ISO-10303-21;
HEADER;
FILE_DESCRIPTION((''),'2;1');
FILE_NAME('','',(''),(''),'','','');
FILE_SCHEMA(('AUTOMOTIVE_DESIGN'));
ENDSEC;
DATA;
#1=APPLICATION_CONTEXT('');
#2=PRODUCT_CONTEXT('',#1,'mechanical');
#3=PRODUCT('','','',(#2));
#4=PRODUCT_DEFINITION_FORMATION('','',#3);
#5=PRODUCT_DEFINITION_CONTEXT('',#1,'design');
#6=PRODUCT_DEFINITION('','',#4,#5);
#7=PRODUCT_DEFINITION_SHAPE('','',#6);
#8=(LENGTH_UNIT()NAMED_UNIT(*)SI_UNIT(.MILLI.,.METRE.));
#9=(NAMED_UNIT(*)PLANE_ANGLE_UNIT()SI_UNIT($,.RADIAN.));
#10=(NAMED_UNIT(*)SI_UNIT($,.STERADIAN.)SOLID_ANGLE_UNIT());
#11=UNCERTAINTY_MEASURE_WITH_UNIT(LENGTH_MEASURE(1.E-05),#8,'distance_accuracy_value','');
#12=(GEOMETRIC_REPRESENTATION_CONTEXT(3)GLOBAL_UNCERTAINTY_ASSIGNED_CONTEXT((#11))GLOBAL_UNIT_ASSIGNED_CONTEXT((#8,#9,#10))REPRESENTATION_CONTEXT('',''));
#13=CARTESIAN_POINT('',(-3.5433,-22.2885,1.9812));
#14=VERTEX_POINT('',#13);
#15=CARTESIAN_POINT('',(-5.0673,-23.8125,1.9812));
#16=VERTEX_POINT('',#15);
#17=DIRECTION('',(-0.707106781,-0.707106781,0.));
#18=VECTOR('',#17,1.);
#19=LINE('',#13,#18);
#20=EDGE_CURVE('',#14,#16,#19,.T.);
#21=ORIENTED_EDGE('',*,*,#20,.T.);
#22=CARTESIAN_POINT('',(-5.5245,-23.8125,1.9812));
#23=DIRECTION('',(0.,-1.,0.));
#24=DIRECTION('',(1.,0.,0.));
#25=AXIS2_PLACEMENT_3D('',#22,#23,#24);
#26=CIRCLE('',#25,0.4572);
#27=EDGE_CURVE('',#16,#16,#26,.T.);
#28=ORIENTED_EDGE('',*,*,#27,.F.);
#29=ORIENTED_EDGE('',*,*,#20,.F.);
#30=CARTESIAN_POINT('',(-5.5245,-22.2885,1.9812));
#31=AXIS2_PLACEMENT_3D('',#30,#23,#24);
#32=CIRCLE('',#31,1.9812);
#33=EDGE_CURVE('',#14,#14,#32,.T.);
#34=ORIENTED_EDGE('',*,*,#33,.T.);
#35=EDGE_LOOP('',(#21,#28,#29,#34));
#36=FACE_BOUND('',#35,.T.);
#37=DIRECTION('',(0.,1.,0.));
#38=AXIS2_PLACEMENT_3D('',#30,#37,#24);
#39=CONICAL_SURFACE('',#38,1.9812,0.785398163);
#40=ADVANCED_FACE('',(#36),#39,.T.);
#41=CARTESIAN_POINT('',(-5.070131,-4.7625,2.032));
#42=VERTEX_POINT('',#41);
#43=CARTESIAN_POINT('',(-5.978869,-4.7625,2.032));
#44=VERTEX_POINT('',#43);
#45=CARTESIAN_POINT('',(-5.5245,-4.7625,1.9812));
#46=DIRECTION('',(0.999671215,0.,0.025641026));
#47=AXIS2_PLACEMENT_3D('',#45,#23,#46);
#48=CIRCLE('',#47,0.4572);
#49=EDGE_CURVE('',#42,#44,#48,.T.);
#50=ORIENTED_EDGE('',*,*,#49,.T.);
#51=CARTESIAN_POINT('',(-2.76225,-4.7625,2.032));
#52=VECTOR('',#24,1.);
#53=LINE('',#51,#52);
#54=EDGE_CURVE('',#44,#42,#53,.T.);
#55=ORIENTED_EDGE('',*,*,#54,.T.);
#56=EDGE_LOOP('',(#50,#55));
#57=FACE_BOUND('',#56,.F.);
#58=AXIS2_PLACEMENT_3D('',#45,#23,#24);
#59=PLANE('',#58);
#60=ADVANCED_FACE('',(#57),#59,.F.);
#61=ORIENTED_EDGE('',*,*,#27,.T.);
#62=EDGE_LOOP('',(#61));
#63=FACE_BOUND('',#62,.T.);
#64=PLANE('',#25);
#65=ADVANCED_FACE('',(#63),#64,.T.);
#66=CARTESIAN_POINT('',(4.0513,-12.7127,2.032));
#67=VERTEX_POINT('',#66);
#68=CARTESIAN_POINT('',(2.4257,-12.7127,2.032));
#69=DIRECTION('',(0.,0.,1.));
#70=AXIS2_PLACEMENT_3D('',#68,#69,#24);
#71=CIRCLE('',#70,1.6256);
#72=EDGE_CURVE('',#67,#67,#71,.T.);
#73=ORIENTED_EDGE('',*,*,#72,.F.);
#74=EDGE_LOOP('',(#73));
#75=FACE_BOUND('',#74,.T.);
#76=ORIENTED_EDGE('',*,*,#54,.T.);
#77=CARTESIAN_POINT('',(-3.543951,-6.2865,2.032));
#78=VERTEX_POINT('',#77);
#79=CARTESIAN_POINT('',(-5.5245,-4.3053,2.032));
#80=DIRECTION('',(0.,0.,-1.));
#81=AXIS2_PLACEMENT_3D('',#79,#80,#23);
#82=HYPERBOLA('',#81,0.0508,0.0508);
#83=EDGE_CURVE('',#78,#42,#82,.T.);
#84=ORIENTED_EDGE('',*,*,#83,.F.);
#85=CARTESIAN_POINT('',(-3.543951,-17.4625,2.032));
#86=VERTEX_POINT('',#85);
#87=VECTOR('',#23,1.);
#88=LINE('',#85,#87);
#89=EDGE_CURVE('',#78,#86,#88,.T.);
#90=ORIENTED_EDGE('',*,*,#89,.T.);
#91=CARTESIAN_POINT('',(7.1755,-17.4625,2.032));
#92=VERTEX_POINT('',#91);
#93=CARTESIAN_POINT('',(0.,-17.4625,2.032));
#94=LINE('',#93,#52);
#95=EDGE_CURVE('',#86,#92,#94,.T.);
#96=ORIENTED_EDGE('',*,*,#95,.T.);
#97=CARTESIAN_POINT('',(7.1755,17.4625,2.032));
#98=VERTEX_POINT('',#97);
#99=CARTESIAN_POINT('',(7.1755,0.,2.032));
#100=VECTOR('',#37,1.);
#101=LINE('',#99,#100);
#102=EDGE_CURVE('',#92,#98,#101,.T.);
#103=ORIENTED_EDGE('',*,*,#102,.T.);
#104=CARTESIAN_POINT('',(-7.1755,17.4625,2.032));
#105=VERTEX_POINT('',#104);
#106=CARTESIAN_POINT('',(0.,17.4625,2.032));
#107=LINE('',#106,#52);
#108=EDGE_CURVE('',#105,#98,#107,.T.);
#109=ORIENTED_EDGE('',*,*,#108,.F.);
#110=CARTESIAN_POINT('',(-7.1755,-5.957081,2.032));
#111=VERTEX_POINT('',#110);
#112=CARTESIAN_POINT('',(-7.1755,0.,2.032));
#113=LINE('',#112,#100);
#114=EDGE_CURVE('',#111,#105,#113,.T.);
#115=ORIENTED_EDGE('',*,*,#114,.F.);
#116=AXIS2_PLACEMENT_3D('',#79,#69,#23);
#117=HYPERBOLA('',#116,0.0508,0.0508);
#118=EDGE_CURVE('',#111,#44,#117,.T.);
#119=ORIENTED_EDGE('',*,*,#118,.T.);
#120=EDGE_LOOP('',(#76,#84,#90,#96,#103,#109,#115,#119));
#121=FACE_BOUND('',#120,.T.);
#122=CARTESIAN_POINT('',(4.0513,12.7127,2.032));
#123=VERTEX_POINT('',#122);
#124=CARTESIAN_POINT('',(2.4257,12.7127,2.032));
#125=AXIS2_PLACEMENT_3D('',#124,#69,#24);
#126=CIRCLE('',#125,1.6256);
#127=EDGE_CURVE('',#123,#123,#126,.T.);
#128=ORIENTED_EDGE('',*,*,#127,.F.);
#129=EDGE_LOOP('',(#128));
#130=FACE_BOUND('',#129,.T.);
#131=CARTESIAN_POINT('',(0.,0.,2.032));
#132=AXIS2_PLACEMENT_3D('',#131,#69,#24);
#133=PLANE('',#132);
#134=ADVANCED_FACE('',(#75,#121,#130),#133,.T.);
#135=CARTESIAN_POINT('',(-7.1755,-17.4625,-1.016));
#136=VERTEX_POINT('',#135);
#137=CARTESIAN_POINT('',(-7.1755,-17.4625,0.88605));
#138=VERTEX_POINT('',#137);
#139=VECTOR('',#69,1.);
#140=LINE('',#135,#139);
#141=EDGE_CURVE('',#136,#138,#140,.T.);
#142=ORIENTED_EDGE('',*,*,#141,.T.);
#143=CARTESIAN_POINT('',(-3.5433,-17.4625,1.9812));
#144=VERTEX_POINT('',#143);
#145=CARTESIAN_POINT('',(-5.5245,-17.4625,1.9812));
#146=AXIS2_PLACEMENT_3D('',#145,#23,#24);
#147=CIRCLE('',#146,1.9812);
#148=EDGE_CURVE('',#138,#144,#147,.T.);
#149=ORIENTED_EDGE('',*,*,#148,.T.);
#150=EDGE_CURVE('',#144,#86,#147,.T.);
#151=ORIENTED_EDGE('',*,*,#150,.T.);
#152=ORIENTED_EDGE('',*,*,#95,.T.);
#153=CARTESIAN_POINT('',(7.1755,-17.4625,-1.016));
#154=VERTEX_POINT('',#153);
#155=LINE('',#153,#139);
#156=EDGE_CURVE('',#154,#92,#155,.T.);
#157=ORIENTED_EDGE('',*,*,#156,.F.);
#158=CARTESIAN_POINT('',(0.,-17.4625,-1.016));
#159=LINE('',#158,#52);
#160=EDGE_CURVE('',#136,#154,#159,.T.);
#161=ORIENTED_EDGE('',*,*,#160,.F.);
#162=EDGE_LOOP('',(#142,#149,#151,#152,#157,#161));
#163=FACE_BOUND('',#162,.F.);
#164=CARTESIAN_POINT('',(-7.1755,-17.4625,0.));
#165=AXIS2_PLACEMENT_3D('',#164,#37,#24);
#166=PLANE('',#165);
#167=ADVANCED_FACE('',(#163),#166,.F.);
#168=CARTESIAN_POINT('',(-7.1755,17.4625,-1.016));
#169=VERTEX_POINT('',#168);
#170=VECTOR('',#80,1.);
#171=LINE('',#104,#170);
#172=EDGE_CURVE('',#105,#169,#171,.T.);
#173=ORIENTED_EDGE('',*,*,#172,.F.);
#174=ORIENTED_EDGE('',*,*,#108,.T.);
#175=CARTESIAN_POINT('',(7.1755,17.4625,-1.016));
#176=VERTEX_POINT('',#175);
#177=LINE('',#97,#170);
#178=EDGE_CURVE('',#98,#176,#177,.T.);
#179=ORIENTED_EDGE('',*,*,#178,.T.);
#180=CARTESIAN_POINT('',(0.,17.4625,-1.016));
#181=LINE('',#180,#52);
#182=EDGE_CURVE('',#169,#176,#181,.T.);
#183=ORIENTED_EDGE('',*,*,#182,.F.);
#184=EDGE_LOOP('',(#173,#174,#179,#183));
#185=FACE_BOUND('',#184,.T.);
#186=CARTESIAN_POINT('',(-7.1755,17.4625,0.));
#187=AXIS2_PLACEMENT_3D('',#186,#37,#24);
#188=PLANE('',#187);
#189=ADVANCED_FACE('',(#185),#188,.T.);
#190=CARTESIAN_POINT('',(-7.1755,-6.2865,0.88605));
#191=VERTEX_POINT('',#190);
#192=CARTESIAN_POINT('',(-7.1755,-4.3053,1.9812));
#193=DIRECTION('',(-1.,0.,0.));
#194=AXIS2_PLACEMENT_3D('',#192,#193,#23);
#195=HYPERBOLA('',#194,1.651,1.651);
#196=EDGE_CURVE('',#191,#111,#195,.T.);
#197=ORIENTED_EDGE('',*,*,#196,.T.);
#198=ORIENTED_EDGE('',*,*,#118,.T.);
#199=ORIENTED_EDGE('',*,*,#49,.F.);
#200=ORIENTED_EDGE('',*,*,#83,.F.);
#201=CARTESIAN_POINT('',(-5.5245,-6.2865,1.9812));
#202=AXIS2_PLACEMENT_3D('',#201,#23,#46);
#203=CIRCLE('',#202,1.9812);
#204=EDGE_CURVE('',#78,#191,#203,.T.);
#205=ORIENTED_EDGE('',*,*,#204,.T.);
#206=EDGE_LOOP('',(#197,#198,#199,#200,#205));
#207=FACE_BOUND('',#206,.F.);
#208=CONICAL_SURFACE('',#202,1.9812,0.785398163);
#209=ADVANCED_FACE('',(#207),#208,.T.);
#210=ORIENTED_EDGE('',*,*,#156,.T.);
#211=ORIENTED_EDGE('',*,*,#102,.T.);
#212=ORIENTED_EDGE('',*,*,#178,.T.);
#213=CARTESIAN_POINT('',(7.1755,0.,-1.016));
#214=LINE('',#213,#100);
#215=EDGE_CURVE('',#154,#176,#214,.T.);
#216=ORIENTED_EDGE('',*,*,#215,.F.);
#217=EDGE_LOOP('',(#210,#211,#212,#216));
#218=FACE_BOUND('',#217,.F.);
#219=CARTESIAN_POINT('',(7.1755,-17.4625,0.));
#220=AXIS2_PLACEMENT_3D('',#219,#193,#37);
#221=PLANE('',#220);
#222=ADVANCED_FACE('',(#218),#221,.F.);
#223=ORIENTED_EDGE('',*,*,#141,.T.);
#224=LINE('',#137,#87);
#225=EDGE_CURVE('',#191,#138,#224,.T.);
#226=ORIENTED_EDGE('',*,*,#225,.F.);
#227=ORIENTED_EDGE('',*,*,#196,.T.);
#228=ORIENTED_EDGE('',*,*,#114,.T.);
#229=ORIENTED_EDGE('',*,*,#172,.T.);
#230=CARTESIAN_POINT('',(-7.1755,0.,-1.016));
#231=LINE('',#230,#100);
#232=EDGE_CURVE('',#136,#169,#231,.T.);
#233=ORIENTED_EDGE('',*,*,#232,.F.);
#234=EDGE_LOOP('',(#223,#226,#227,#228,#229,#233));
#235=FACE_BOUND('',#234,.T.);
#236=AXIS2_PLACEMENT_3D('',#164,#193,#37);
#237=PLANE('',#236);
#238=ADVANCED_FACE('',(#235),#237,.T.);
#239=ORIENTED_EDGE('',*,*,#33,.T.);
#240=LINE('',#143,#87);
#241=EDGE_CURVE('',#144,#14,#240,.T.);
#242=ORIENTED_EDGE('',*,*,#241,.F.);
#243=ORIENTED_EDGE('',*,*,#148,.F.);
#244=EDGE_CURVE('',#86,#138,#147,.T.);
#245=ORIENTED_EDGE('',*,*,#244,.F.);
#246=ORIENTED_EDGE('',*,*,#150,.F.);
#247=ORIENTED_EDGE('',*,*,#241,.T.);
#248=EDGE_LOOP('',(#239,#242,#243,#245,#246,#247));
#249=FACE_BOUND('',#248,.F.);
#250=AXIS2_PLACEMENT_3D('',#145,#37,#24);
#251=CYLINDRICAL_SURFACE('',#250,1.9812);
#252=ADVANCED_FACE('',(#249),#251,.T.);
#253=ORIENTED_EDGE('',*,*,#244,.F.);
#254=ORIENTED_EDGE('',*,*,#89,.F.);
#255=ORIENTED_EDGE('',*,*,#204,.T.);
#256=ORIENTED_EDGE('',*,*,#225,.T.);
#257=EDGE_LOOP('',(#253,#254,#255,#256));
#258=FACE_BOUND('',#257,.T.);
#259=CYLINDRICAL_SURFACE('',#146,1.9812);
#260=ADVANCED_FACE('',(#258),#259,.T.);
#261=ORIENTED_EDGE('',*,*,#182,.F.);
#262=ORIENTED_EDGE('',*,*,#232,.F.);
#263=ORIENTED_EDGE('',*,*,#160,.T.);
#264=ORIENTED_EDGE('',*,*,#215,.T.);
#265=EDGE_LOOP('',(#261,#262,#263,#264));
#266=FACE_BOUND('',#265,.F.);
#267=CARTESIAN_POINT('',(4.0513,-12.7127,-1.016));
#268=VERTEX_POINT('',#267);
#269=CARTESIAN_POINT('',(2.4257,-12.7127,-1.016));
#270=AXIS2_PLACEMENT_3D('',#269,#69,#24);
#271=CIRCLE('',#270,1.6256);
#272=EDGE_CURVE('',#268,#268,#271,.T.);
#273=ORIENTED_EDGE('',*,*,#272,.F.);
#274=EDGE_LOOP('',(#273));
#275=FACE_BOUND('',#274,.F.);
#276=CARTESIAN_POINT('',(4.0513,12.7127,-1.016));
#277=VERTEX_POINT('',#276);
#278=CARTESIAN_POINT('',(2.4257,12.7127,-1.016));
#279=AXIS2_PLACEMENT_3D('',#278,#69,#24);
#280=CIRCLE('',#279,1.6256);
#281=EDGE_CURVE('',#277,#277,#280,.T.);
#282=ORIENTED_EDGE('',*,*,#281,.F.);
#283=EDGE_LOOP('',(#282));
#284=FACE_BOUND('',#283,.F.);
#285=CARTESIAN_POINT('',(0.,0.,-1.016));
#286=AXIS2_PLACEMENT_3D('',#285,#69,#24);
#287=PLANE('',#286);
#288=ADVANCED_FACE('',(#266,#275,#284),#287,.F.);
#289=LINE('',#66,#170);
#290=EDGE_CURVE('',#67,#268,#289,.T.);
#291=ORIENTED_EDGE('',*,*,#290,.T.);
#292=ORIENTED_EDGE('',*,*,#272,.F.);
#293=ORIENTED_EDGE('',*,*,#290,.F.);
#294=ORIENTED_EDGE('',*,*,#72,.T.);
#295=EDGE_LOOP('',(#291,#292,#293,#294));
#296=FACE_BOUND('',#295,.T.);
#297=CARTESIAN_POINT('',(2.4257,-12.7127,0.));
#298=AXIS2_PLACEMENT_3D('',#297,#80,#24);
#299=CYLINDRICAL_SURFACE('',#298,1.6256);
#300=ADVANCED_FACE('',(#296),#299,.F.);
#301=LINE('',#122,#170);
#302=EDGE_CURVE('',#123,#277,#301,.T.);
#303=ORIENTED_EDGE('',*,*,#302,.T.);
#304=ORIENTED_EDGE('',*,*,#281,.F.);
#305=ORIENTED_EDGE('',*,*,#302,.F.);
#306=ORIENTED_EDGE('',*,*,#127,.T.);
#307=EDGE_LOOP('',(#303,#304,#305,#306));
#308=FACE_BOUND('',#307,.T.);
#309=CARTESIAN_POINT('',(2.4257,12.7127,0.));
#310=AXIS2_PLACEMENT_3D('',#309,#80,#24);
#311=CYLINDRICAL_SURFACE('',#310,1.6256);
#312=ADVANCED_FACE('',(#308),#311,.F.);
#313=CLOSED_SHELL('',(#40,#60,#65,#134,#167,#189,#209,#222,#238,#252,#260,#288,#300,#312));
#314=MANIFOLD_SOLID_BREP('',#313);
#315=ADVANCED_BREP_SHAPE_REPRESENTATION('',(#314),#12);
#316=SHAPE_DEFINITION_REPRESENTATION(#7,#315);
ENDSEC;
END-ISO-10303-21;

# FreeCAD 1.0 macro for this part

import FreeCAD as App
import Part
import Sketcher
Q = App.Units.Quantity


def edges_at(feature, points):
    """Names of the edges that pass closest to the given points."""
    edges = feature.Shape.Edges
    near = lambda p: min(range(len(edges)), key=lambda i: edges[i].distToShape(Part.Vertex(*p))[0])
    return sorted({f"Edge{near(p) + 1}" for p in points})

doc = App.newDocument("Part")
body = doc.addObject("PartDesign::Body", "Body")

# Sketch on XY plane
sketch1 = body.newObject("Sketcher::SketchObject", "Sketch")
sketch1.AttachmentSupport = (doc.getObject("XY_Plane"), [""])
sketch1.MapMode = "FlatFace"
sketch1.addGeometry(Part.LineSegment(App.Vector(-7.2, 17.5, 0), App.Vector(-7.2, -17.5, 0)), False)
sketch1.addGeometry(Part.LineSegment(App.Vector(-7.2, -17.5, 0), App.Vector(7.2, -17.5, 0)), False)
sketch1.addGeometry(Part.LineSegment(App.Vector(7.2, -17.5, 0), App.Vector(7.2, 17.5, 0)), False)
sketch1.addGeometry(Part.LineSegment(App.Vector(7.2, 17.5, 0), App.Vector(-7.2, 17.5, 0)), False)
sketch1.addGeometry(Part.Circle(App.Vector(2.4, -12.7, 0), App.Vector(0, 0, 1), 1.6), False)
sketch1.addGeometry(Part.Circle(App.Vector(2.4, 12.7, 0), App.Vector(0, 0, 1), 1.6), False)
sketch1.addConstraint(Sketcher.Constraint("Coincident", 0, 2, 1, 1))
sketch1.addConstraint(Sketcher.Constraint("Coincident", 1, 2, 2, 1))
sketch1.addConstraint(Sketcher.Constraint("Coincident", 2, 2, 3, 1))
sketch1.addConstraint(Sketcher.Constraint("Coincident", 3, 2, 0, 1))
sketch1.addConstraint(Sketcher.Constraint("Vertical", 0))
sketch1.addConstraint(Sketcher.Constraint("Horizontal", 1))
sketch1.addConstraint(Sketcher.Constraint("Vertical", 2))
sketch1.addConstraint(Sketcher.Constraint("Horizontal", 3))
sketch1.addConstraint(Sketcher.Constraint("Equal", 4, 5))
sketch1.addConstraint(Sketcher.Constraint("Symmetric", 0, 2, 2, 2, -1, 1))
sketch1.addConstraint(Sketcher.Constraint("Symmetric", 4, 3, 5, 3, -1))
sketch1.addConstraint(Sketcher.Constraint("Diameter", 4, Q("0.128 in")))
sketch1.addConstraint(Sketcher.Constraint("DistanceX", 1, 1, 1, 2, Q("0.565 in")))
sketch1.addConstraint(Sketcher.Constraint("DistanceY", 0, 2, 0, 1, Q("1.375 in")))
sketch1.addConstraint(Sketcher.Constraint("DistanceY", 4, 3, 5, 3, Q("1.001 in")))
sketch1.addConstraint(Sketcher.Constraint("DistanceX", 0, 2, 4, 3, Q("0.378 in")))
pad1 = body.newObject("PartDesign::Pad", "Pad")
pad1.Profile = sketch1
pad1.Type = "TwoLengths"
pad1.Length = Q("0.04 in")
pad1.Length2 = Q("0.08 in")
pad1.Reversed = True

# Sketch on XZ plane
sketch2 = body.newObject("Sketcher::SketchObject", "Sketch001")
sketch2.AttachmentSupport = (doc.getObject("XZ_Plane"), [""])
sketch2.MapMode = "FlatFace"
sketch2.AttachmentOffset = App.Placement(App.Vector(0, 0, 0.6875 * 25.4), App.Rotation())
sketch2.addGeometry(Part.Circle(App.Vector(-5.5, 2, 0), App.Vector(0, 0, 1), 2), False)
sketch2.addConstraint(Sketcher.Constraint("Diameter", 0, Q("0.156 in")))
sketch2.addConstraint(Sketcher.Constraint("DistanceY", -1, 1, 0, 3, Q("0.078 in")))
sketch2.addConstraint(Sketcher.Constraint("DistanceX", 0, 3, -1, 1, Q("0.2175 in")))
pad2 = body.newObject("PartDesign::Pad", "Pad001")
pad2.Profile = sketch2
pad2.Type = "TwoLengths"
pad2.Length = Q("0.25 in")
pad2.Length2 = Q("0.5 in")
doc.recompute()

chamfer = body.newObject("PartDesign::Chamfer", "Chamfer")
chamfer.Base = (pad2, edges_at(pad2, [(-7.506, -23.812, 1.981), (-6.121, -4.763, 3.871)]))
chamfer.Size = Q("0.06 in")

doc.recompute()
